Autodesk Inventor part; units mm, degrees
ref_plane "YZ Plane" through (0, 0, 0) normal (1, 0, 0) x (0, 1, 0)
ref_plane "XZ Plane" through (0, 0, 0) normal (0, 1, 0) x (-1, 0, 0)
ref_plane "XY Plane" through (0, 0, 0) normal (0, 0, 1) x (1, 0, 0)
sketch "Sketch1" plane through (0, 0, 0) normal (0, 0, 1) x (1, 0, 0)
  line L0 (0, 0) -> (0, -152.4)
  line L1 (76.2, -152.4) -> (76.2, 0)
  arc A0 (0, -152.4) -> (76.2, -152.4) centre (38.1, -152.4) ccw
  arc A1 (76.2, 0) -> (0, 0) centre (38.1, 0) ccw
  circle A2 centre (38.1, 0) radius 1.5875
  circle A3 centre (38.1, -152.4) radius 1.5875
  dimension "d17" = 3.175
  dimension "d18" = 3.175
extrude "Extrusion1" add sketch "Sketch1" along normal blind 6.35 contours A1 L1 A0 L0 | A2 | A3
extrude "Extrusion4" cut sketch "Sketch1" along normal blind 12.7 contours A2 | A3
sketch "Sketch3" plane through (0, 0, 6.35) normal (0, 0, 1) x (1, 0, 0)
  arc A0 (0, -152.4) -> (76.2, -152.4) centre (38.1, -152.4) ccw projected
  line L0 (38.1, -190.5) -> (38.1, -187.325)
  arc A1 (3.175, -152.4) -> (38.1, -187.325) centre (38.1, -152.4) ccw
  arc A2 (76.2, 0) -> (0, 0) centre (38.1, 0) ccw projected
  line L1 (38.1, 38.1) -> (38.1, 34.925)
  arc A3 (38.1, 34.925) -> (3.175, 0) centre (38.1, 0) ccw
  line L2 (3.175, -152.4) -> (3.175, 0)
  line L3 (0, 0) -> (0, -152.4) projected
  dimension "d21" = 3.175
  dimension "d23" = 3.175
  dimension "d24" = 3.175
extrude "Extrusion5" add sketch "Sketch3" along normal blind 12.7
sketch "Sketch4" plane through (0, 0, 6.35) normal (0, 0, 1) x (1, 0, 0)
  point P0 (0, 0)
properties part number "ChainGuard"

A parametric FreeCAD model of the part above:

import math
import FreeCAD as App
import Part
import Sketcher
Q = App.Units.Quantity

doc = App.newDocument("Part")
body = doc.addObject("PartDesign::Body", "Body")

sketch1 = body.newObject("Sketcher::SketchObject", "Sketch")
sketch1.AttachmentSupport = (doc.getObject("XY_Plane"), [""])
sketch1.MapMode = "FlatFace"
sketch1.addGeometry([
    Part.ArcOfCircle(Part.Circle(App.Vector(38, 0, 0), App.Vector(0, 0, 1), 38), math.radians(0), math.radians(180)),
    Part.LineSegment(App.Vector(0, 0, 0), App.Vector(0, -152, 0)),
    Part.ArcOfCircle(Part.Circle(App.Vector(38, -152, 0), App.Vector(0, 0, 1), 38), math.radians(180), math.radians(360)),
    Part.LineSegment(App.Vector(76, -152, 0), App.Vector(76, 0, 0)),
], False)
sketch1.addConstraint([
    Sketcher.Constraint("Tangent", 0, 2, 1, 1),
    Sketcher.Constraint("Tangent", 1, 2, 2, 1),
    Sketcher.Constraint("Tangent", 2, 2, 3, 1),
    Sketcher.Constraint("Tangent", 3, 2, 0, 1),
    Sketcher.Constraint("Vertical", 1),
    Sketcher.Constraint("Vertical", 3),
    Sketcher.Constraint("Coincident", 0, 2, -1, 1),
    Sketcher.Constraint("Radius", 0, Q("1.5 in")),
    Sketcher.Constraint("DistanceY", 1, 2, 1, 1, Q("6 in")),
])
pad1 = body.newObject("PartDesign::Pad", "Pad")
pad1.Profile = sketch1
pad1.Length = Q("0.25 in")

sketch2 = body.newObject("Sketcher::SketchObject", "Sketch001")
sketch2.AttachmentSupport = (doc.getObject("XY_Plane"), [""])
sketch2.MapMode = "FlatFace"
sketch2.addGeometry([
    Part.Circle(App.Vector(38.1, 0, 0), App.Vector(0, 0, 1), 1.6),
    Part.Circle(App.Vector(38.1, -152.4, 0), App.Vector(0, 0, 1), 1.6),
], False)
sketch2.addConstraint([
    Sketcher.Constraint("Equal", 0, 1),
    Sketcher.Constraint("PointOnObject", 0, 3, -1),
    Sketcher.Constraint("Vertical", 0, 3, 1, 3),
    Sketcher.Constraint("Diameter", 0, Q("0.125 in")),
    Sketcher.Constraint("DistanceY", 1, 3, -1, 1, Q("6 in")),
    Sketcher.Constraint("DistanceX", -1, 1, 0, 3, Q("1.5 in")),
])
pocket1 = body.newObject("PartDesign::Pocket", "Pocket")
pocket1.Profile = sketch2
pocket1.Length = Q("0.5 in")
pocket1.Reversed = True

sketch3 = body.newObject("Sketcher::SketchObject", "Sketch002")
sketch3.AttachmentSupport = (doc.getObject("XY_Plane"), [""])
sketch3.MapMode = "FlatFace"
sketch3.AttachmentOffset = App.Placement(App.Vector(0, 0, 0.25 * 25.4), App.Rotation())
sketch3.addGeometry([
    Part.LineSegment(App.Vector(0, 0, 0), App.Vector(0, -152.4, 0)),
    Part.ArcOfCircle(Part.Circle(App.Vector(38.1, -152.4, 0), App.Vector(0, 0, 1), 38.1), math.radians(180), math.radians(270)),
    Part.LineSegment(App.Vector(38.1, -190.5, 0), App.Vector(38.1, -187.3, 0)),
    Part.ArcOfCircle(Part.Circle(App.Vector(38.1, -152.4, 0), App.Vector(0, 0, 1), 34.9), math.radians(180), math.radians(270)),
    Part.LineSegment(App.Vector(3.2, -152.4, 0), App.Vector(3.2, 0, 0)),
    Part.ArcOfCircle(Part.Circle(App.Vector(38.1, 0, 0), App.Vector(0, 0, 1), 34.9), math.radians(90), math.radians(180)),
    Part.LineSegment(App.Vector(38.1, 34.9, 0), App.Vector(38.1, 38.1, 0)),
    Part.ArcOfCircle(Part.Circle(App.Vector(38.1, 0, 0), App.Vector(0, 0, 1), 38.1), math.radians(90), math.radians(180)),
], False)
sketch3.addConstraint([
    Sketcher.Constraint("Tangent", 0, 2, 1, 1),
    Sketcher.Constraint("Coincident", 1, 2, 2, 1),
    Sketcher.Constraint("Coincident", 2, 2, 3, 2),
    Sketcher.Constraint("Tangent", 3, 1, 4, 1),
    Sketcher.Constraint("Tangent", 4, 2, 5, 2),
    Sketcher.Constraint("Coincident", 5, 1, 6, 1),
    Sketcher.Constraint("Coincident", 6, 2, 7, 1),
    Sketcher.Constraint("Tangent", 7, 2, 0, 1),
    Sketcher.Constraint("Vertical", 0),
    Sketcher.Constraint("Vertical", 2),
    Sketcher.Constraint("Vertical", 4),
    Sketcher.Constraint("Vertical", 6),
    Sketcher.Constraint("Coincident", 7, 2, -1, 1),
    Sketcher.Constraint("Coincident", 3, 3, 1, 3),
    Sketcher.Constraint("Coincident", 7, 3, 5, 3),
    Sketcher.Constraint("Equal", 3, 5),
    Sketcher.Constraint("Vertical", 7, 3, 1, 2),
    Sketcher.Constraint("Vertical", 2, 2, 5, 1),
    Sketcher.Constraint("Radius", 1, Q("1.5 in")),
    Sketcher.Constraint("DistanceY", 0, 2, 0, 1, Q("6 in")),
    Sketcher.Constraint("DistanceY", 2, 1, 2, 2, Q("0.125 in")),
])
pad2 = body.newObject("PartDesign::Pad", "Pad001")
pad2.Profile = sketch3
pad2.Length = Q("0.5 in")

doc.recompute()
